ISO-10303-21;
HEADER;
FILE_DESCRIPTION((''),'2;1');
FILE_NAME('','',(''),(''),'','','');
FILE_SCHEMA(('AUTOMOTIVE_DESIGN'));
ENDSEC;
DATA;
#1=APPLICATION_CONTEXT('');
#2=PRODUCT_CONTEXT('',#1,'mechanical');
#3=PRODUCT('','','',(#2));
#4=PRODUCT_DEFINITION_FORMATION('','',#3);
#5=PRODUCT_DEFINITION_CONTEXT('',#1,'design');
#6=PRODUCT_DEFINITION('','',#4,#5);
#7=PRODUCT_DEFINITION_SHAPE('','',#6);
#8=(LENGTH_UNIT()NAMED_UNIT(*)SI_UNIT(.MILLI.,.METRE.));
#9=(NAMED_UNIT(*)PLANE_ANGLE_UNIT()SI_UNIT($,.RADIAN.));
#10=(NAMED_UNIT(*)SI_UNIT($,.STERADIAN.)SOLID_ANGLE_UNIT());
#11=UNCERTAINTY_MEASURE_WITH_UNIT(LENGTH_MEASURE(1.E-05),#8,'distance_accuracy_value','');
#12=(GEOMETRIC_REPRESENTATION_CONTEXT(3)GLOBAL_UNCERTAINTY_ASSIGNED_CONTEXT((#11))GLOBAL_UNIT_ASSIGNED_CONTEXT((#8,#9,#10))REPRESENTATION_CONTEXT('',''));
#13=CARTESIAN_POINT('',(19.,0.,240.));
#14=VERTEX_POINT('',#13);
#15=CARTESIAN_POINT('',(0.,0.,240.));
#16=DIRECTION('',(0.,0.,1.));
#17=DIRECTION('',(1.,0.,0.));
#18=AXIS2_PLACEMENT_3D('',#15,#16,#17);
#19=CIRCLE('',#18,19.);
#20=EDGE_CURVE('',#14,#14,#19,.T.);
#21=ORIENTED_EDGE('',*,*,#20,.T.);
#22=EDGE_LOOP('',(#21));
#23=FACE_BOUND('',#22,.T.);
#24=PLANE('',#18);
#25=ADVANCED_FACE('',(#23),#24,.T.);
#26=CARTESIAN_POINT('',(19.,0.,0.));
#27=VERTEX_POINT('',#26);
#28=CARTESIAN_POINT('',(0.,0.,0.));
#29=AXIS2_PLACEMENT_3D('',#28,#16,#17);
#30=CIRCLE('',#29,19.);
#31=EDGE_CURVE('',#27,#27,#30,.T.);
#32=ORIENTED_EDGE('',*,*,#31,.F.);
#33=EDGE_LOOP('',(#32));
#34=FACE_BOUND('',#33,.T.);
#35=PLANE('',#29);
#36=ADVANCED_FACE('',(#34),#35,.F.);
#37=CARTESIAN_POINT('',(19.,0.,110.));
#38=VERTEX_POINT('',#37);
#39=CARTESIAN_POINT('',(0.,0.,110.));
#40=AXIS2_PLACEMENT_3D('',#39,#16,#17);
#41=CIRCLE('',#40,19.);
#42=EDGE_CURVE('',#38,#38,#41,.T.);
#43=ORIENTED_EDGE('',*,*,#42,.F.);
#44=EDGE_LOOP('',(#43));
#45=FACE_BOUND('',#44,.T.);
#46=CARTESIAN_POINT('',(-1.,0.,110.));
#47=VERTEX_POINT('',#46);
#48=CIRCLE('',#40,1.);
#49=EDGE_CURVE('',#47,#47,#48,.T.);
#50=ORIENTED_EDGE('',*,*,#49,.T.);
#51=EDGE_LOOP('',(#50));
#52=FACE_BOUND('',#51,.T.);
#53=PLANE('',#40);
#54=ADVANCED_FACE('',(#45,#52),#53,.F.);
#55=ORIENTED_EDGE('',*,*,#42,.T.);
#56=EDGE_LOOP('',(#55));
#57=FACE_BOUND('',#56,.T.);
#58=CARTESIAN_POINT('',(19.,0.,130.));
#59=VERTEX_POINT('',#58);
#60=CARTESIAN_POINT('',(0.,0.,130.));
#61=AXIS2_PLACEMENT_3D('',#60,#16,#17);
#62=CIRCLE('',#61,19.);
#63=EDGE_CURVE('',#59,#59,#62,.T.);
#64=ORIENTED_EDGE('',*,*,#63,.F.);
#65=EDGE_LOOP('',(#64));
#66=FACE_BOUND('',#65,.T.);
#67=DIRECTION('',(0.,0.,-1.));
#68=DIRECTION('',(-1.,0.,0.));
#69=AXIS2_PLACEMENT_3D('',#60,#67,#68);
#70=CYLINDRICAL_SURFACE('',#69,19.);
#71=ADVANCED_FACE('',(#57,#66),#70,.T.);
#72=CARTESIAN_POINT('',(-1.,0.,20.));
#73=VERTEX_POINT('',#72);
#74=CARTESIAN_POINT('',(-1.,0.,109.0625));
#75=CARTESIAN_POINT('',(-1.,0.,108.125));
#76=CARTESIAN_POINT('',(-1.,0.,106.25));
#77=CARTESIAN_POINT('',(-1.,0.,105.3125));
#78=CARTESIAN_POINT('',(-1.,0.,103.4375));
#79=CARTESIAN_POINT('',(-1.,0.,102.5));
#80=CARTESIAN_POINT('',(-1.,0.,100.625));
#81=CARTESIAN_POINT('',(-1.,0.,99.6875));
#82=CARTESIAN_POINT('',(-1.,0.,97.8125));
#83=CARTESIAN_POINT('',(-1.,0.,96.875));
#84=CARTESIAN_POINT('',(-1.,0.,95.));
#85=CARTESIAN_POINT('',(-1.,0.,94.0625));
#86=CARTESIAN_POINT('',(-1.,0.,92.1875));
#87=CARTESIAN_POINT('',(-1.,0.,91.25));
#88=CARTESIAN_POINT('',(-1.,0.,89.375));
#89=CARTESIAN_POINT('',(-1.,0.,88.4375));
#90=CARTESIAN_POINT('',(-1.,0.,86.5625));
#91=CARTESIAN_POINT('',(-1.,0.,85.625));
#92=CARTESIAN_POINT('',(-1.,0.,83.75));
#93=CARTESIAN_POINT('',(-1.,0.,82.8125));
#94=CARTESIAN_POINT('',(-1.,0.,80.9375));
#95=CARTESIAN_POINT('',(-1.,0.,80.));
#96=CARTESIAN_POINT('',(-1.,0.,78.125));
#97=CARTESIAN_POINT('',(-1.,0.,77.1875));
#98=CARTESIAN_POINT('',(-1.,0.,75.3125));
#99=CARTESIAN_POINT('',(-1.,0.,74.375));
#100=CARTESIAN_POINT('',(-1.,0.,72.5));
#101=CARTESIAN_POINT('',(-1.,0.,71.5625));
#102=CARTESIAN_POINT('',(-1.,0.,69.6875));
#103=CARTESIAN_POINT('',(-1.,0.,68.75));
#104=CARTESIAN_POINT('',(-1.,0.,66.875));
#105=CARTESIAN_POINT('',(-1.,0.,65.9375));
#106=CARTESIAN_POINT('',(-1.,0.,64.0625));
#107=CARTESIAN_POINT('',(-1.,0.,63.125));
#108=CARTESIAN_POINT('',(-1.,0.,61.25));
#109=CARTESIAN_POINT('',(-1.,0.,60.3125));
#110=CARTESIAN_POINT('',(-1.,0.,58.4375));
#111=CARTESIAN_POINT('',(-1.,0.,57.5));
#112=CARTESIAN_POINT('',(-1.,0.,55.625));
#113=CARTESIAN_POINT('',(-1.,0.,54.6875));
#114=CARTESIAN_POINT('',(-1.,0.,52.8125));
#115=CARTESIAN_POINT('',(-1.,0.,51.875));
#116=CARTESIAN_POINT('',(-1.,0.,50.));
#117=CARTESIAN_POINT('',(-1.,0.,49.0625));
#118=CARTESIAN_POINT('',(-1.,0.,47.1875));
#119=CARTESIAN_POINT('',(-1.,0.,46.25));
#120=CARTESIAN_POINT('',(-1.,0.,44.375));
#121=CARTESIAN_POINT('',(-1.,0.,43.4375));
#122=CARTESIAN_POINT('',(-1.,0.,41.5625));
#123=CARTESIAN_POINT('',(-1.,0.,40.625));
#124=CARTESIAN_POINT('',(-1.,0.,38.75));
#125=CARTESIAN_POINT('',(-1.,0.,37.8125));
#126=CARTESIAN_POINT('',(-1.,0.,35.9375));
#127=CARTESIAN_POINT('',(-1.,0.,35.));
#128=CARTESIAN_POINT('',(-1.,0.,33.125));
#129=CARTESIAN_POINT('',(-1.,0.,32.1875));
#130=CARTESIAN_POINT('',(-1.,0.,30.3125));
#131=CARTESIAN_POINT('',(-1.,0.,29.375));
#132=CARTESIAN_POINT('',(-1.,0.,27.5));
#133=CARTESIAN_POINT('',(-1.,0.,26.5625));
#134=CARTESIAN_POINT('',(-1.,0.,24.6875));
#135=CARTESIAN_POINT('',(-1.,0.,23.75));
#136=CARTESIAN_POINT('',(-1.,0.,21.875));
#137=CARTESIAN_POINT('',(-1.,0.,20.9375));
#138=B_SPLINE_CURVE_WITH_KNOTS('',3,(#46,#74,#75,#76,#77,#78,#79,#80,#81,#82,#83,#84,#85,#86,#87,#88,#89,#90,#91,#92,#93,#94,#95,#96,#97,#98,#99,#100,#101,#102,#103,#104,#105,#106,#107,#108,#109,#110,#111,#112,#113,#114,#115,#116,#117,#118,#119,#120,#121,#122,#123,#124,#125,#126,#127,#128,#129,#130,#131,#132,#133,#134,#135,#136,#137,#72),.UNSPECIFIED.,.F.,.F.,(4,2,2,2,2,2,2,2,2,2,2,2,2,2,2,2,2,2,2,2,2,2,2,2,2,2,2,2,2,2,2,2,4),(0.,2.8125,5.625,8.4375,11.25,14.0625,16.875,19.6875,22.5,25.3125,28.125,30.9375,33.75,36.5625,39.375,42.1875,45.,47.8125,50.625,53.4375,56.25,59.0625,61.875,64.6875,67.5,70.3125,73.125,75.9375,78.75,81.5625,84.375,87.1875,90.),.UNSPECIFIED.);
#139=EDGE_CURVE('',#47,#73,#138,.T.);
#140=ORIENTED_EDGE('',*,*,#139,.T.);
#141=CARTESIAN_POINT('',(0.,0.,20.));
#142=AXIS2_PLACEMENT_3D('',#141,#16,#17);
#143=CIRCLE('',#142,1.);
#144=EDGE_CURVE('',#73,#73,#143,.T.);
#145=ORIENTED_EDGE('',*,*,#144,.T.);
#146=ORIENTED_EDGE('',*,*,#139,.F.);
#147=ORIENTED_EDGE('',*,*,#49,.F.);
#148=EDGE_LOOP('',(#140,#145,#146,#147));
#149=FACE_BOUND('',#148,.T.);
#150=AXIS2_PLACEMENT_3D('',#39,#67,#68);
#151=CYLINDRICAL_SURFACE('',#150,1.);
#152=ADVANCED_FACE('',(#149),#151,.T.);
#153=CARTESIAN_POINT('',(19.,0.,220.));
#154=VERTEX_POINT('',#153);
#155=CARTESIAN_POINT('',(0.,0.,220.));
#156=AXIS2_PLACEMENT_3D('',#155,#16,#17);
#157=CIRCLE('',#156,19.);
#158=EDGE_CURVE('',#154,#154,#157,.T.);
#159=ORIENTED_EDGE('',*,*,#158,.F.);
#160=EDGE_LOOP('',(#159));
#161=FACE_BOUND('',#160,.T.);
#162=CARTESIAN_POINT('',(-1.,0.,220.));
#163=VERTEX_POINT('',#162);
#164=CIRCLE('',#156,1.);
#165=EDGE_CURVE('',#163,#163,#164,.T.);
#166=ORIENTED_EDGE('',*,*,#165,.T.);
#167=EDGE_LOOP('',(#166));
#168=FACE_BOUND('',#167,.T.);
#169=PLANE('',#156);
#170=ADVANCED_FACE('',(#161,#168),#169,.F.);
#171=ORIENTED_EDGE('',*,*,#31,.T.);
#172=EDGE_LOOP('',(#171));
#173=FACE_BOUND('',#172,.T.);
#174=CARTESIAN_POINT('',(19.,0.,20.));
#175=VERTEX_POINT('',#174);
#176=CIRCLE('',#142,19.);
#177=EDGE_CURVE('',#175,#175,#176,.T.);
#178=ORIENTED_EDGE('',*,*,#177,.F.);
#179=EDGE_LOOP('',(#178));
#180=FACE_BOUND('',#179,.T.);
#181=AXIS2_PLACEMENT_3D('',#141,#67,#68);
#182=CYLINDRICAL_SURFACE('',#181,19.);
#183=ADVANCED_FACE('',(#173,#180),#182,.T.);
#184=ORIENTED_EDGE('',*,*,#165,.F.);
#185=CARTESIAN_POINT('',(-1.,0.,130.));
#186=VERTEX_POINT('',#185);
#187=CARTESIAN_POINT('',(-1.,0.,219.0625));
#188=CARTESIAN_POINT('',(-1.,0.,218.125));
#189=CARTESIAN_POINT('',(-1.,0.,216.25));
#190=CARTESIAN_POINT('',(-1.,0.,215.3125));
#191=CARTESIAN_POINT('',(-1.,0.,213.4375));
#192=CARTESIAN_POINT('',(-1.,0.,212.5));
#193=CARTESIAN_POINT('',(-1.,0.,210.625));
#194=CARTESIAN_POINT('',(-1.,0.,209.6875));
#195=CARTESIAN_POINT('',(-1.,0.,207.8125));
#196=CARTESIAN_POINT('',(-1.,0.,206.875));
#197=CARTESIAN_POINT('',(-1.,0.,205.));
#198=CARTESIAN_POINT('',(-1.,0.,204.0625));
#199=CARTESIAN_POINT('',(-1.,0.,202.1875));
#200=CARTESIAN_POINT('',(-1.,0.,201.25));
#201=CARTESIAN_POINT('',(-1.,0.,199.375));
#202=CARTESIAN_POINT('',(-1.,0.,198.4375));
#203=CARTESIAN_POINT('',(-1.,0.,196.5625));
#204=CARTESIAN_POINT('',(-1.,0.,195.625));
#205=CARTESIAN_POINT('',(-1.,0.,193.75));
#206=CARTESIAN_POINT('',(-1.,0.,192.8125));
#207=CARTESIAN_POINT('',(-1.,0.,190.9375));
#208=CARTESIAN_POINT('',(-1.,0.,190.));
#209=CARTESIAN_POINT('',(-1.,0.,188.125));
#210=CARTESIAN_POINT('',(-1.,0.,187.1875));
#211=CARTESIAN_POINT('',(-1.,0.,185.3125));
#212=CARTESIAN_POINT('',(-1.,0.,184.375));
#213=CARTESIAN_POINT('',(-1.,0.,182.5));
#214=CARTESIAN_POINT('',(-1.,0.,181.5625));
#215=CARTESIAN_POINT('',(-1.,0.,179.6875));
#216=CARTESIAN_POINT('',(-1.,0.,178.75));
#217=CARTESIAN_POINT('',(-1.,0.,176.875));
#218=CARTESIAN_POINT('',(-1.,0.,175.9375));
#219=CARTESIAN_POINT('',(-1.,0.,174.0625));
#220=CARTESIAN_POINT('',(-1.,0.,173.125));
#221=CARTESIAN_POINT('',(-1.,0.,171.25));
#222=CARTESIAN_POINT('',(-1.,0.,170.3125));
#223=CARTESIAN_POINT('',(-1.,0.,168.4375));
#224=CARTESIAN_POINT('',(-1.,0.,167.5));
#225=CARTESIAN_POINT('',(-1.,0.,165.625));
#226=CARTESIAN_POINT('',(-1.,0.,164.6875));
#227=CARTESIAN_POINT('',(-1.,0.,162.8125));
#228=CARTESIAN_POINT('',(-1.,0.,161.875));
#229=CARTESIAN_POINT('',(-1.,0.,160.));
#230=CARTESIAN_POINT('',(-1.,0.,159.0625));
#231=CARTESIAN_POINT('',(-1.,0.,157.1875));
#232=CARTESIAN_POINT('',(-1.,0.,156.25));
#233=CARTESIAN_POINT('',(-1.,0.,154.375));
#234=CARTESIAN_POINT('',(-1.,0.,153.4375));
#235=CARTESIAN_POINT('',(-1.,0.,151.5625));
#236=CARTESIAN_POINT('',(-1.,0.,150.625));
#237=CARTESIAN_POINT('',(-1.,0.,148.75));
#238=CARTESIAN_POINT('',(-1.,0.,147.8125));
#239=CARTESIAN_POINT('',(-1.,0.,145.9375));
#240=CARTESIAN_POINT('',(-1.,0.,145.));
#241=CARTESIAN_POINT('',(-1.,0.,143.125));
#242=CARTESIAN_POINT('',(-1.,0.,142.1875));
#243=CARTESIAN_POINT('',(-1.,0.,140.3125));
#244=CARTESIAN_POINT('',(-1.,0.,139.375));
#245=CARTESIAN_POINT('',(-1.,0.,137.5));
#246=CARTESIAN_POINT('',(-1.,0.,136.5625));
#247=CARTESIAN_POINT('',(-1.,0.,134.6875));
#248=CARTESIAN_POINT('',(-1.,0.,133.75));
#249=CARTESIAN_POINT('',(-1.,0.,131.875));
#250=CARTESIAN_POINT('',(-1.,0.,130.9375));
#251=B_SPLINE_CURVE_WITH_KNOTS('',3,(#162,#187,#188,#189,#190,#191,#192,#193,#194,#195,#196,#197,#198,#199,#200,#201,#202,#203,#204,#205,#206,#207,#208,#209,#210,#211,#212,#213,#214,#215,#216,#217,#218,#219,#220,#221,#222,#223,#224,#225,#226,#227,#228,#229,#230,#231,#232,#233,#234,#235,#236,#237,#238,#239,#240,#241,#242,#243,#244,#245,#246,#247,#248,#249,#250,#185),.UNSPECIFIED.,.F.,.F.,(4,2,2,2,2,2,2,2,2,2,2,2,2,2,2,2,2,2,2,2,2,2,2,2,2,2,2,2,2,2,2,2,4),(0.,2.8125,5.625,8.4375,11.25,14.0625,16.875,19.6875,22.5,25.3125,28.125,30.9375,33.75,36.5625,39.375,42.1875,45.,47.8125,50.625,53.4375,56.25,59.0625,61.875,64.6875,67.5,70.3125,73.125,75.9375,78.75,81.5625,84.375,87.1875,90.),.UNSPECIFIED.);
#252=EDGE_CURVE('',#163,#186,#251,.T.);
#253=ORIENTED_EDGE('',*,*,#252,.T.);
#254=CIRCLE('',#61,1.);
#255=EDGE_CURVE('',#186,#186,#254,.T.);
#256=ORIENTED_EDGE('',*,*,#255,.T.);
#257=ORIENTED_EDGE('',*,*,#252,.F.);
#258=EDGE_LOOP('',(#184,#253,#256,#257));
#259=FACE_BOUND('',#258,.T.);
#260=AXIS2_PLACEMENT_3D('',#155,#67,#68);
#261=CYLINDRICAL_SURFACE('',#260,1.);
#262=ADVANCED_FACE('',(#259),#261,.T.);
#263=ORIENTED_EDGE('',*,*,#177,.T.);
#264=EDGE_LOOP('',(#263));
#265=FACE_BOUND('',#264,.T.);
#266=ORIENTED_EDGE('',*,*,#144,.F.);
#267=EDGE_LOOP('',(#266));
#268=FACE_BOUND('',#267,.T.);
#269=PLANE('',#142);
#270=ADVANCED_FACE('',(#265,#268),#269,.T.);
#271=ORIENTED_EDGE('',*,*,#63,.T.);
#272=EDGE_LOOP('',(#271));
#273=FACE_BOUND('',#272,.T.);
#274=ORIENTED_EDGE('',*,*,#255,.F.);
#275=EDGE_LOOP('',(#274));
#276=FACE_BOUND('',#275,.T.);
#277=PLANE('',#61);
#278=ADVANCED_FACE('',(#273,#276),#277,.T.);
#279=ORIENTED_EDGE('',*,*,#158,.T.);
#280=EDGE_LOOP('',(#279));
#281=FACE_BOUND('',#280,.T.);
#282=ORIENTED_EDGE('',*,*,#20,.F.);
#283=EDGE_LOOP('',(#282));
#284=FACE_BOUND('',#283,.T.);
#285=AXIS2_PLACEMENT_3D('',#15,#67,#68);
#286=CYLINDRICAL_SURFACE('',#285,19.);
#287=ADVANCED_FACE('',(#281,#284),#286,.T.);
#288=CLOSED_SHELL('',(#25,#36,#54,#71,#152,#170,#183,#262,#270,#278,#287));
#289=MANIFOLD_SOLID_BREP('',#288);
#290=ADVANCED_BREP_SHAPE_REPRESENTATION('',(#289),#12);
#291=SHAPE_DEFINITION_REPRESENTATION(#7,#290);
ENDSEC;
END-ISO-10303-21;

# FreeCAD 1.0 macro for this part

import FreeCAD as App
import Part
import Sketcher
Q = App.Units.Quantity

doc = App.newDocument("Part")
body = doc.addObject("PartDesign::Body", "Body")

# Sketch on XY plane
sketch1 = doc.addObject("Sketcher::SketchObject", "Sketch")
body.addObject(sketch1)
sketch1.AttachmentSupport = (doc.XY_Plane, [""])
sketch1.MapMode = "FlatFace"
sketch1.addGeometry(Part.Circle(App.Vector(0, 0, 0), App.Vector(0, 0, 1), 19), False)
sketch1.addConstraint([
    Sketcher.Constraint("Coincident", 0, 3, -1, 1),
    Sketcher.Constraint("Diameter", 0, Q("38 mm")),
])
pad1 = doc.addObject("PartDesign::Pad", "Pad")
body.addObject(pad1)
pad1.Profile = sketch1
pad1.Length = 20

# Sketch on XY plane
sketch2 = doc.addObject("Sketcher::SketchObject", "Sketch001")
body.addObject(sketch2)
sketch2.AttachmentSupport = (doc.XY_Plane, [""])
sketch2.MapMode = "FlatFace"
sketch2.AttachmentOffset = App.Placement(App.Vector(0, 0, 20), App.Rotation())
sketch2.addGeometry(Part.Circle(App.Vector(0, 0, 0), App.Vector(0, 0, 1), 1), False)
sketch2.addConstraint([
    Sketcher.Constraint("Coincident", 0, 3, -1, 1),
    Sketcher.Constraint("Diameter", 0, Q("2 mm")),
])
pad2 = doc.addObject("PartDesign::Pad", "Pad001")
body.addObject(pad2)
pad2.Profile = sketch2
pad2.Length = 90

# Sketch on XY plane
sketch3 = doc.addObject("Sketcher::SketchObject", "Sketch002")
body.addObject(sketch3)
sketch3.AttachmentSupport = (doc.XY_Plane, [""])
sketch3.MapMode = "FlatFace"
sketch3.AttachmentOffset = App.Placement(App.Vector(0, 0, 110), App.Rotation())
sketch3.addGeometry(Part.Circle(App.Vector(0, 0, 0), App.Vector(0, 0, 1), 19), False)
sketch3.addConstraint([
    Sketcher.Constraint("Coincident", 0, 3, -1, 1),
    Sketcher.Constraint("Diameter", 0, Q("38 mm")),
])
pad3 = doc.addObject("PartDesign::Pad", "Pad002")
body.addObject(pad3)
pad3.Profile = sketch3
pad3.Length = 20

# Sketch on XY plane
sketch4 = doc.addObject("Sketcher::SketchObject", "Sketch003")
body.addObject(sketch4)
sketch4.AttachmentSupport = (doc.XY_Plane, [""])
sketch4.MapMode = "FlatFace"
sketch4.AttachmentOffset = App.Placement(App.Vector(0, 0, 130), App.Rotation())
sketch4.addGeometry(Part.Circle(App.Vector(0, 0, 0), App.Vector(0, 0, 1), 1), False)
sketch4.addConstraint([
    Sketcher.Constraint("Coincident", 0, 3, -1, 1),
    Sketcher.Constraint("Diameter", 0, Q("2 mm")),
])
pad4 = doc.addObject("PartDesign::Pad", "Pad003")
body.addObject(pad4)
pad4.Profile = sketch4
pad4.Length = 90

# Sketch on XY plane
sketch5 = doc.addObject("Sketcher::SketchObject", "Sketch004")
body.addObject(sketch5)
sketch5.AttachmentSupport = (doc.XY_Plane, [""])
sketch5.MapMode = "FlatFace"
sketch5.AttachmentOffset = App.Placement(App.Vector(0, 0, 220), App.Rotation())
sketch5.addGeometry(Part.Circle(App.Vector(0, 0, 0), App.Vector(0, 0, 1), 19), False)
sketch5.addConstraint([
    Sketcher.Constraint("Coincident", 0, 3, -1, 1),
    Sketcher.Constraint("Diameter", 0, Q("38 mm")),
])
pad5 = doc.addObject("PartDesign::Pad", "Pad004")
body.addObject(pad5)
pad5.Profile = sketch5
pad5.Length = 20

doc.recompute()
